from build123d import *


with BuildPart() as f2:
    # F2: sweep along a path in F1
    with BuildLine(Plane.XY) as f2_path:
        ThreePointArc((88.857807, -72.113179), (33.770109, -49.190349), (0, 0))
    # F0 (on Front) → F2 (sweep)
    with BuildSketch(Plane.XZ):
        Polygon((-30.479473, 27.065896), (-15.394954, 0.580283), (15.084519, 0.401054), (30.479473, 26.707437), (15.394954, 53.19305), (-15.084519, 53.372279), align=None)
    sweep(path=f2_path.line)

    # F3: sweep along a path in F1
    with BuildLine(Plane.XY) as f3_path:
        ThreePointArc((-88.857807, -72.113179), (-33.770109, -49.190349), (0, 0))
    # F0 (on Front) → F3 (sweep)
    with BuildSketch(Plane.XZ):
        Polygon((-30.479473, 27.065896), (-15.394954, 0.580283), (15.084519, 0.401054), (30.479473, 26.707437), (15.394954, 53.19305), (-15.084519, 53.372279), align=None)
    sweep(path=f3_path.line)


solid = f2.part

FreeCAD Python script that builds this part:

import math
import FreeCAD as App
import Part
import Sketcher

V = App.Vector
Q = App.Units.Quantity


def add_polygon(sketch, points):
    """Adds a closed chain of lines whose ends are joined by coincident constraints."""
    first, n = sketch.GeometryCount, len(points)
    for a, b in zip(points, points[1:] + points[:1]):
        sketch.addGeometry(Part.LineSegment(App.Vector(*a, 0), App.Vector(*b, 0)), False)
    for i in range(n):
        sketch.addConstraint(Sketcher.Constraint("Coincident", first + i, 2, first + (i + 1) % n, 1))

doc = App.newDocument("Part")
body = doc.addObject("PartDesign::Body", "Body")

# Sketch on XZ plane
sketch1 = body.newObject("Sketcher::SketchObject", "Sketch")
sketch1.AttachmentSupport = (doc.getObject("XZ_Plane"), [""])
sketch1.MapMode = "FlatFace"
add_polygon(sketch1, [(-30, 27), (-15, 1), (15, 0), (30, 27), (15, 53), (-15, 53)])  # lines 0-5
sketch1.addConstraint(Sketcher.Constraint("Parallel", 0, 3))
sketch1.addConstraint(Sketcher.Constraint("Parallel", 1, 4))
sketch1.addConstraint(Sketcher.Constraint("Parallel", 2, 5))
sketch1.addConstraint(Sketcher.Constraint("Equal", 0, 1))
sketch1.addConstraint(Sketcher.Constraint("Equal", 1, 2))
sketch1.addConstraint(Sketcher.Constraint("Equal", 2, 3))
sketch1.addConstraint(Sketcher.Constraint("Distance", 0, Q("1.2 in")))
sketch1.addConstraint(Sketcher.Constraint("DistanceX", -1, 1, 1, 2, 15.084519))
sketch1.addConstraint(Sketcher.Constraint("DistanceY", -1, 1, 3, 2, 53.19305))
sketch1.addConstraint(Sketcher.Constraint("DistanceX", 4, 2, -1, 1, 15.084519))
sketch1.addConstraint(Sketcher.Constraint("DistanceY", -1, 1, 4, 2, 53.372279))
sketch1.addConstraint(Sketcher.Constraint("DistanceX", 3, 2, 2, 2, 15.084519))

# Sketch on XY plane
sketch2 = body.newObject("Sketcher::SketchObject", "Sketch001")
sketch2.AttachmentSupport = (doc.getObject("XY_Plane"), [""])
sketch2.MapMode = "FlatFace"
sketch2.addGeometry(Part.ArcOfCircle(Part.Circle(V(100, 33, 0), V(0, 0, 1), 105), math.radians(-162), math.radians(-96)), False)
sketch2.addConstraint(Sketcher.Constraint("Coincident", 0, 1, -1, 1))
sketch2.addConstraint(Sketcher.Constraint("Radius", 0, 105.237463))
sketch2.addConstraint(Sketcher.Constraint("DistanceY", 0, 2, -1, 1, 72.113179))
sketch2.addConstraint(Sketcher.Constraint("DistanceX", -1, 1, 0, 3, 100.085653))
doc.recompute()

additivepipe = body.newObject("PartDesign::AdditivePipe", "AdditivePipe")
additivepipe.Profile = sketch1
additivepipe.Spine = (sketch2, ["Edge1"])

# Sketch on XZ plane
sketch3 = body.newObject("Sketcher::SketchObject", "Sketch002")
sketch3.AttachmentSupport = (doc.getObject("XZ_Plane"), [""])
sketch3.MapMode = "FlatFace"
add_polygon(sketch3, [(-30, 27), (-15, 1), (15, 0), (30, 27), (15, 53), (-15, 53)])  # lines 0-5
sketch3.addConstraint(Sketcher.Constraint("Parallel", 0, 3))
sketch3.addConstraint(Sketcher.Constraint("Parallel", 1, 4))
sketch3.addConstraint(Sketcher.Constraint("Parallel", 2, 5))
sketch3.addConstraint(Sketcher.Constraint("Equal", 0, 1))
sketch3.addConstraint(Sketcher.Constraint("Equal", 1, 2))
sketch3.addConstraint(Sketcher.Constraint("Equal", 2, 3))
sketch3.addConstraint(Sketcher.Constraint("Distance", 0, Q("1.2 in")))
sketch3.addConstraint(Sketcher.Constraint("DistanceX", -1, 1, 1, 2, 15.084519))
sketch3.addConstraint(Sketcher.Constraint("DistanceY", -1, 1, 3, 2, 53.19305))
sketch3.addConstraint(Sketcher.Constraint("DistanceX", 4, 2, -1, 1, 15.084519))
sketch3.addConstraint(Sketcher.Constraint("DistanceY", -1, 1, 4, 2, 53.372279))
sketch3.addConstraint(Sketcher.Constraint("DistanceX", 3, 2, 2, 2, 15.084519))

# Sketch on XY plane
sketch4 = body.newObject("Sketcher::SketchObject", "Sketch003")
sketch4.AttachmentSupport = (doc.getObject("XY_Plane"), [""])
sketch4.MapMode = "FlatFace"
sketch4.addGeometry(Part.ArcOfCircle(Part.Circle(V(-100, 33, 0), V(0, 0, 1), 105), math.radians(-84), math.radians(-18)), False)
sketch4.addConstraint(Sketcher.Constraint("Coincident", 0, 2, -1, 1))
sketch4.addConstraint(Sketcher.Constraint("Radius", 0, 105.237463))
sketch4.addConstraint(Sketcher.Constraint("DistanceY", 0, 1, -1, 1, 72.113179))
sketch4.addConstraint(Sketcher.Constraint("DistanceX", 0, 3, -1, 1, 100.085653))
doc.recompute()

additivepipe2 = body.newObject("PartDesign::AdditivePipe", "AdditivePipe001")
additivepipe2.Profile = sketch3
additivepipe2.Spine = (sketch4, ["Edge1"])

doc.recompute()
